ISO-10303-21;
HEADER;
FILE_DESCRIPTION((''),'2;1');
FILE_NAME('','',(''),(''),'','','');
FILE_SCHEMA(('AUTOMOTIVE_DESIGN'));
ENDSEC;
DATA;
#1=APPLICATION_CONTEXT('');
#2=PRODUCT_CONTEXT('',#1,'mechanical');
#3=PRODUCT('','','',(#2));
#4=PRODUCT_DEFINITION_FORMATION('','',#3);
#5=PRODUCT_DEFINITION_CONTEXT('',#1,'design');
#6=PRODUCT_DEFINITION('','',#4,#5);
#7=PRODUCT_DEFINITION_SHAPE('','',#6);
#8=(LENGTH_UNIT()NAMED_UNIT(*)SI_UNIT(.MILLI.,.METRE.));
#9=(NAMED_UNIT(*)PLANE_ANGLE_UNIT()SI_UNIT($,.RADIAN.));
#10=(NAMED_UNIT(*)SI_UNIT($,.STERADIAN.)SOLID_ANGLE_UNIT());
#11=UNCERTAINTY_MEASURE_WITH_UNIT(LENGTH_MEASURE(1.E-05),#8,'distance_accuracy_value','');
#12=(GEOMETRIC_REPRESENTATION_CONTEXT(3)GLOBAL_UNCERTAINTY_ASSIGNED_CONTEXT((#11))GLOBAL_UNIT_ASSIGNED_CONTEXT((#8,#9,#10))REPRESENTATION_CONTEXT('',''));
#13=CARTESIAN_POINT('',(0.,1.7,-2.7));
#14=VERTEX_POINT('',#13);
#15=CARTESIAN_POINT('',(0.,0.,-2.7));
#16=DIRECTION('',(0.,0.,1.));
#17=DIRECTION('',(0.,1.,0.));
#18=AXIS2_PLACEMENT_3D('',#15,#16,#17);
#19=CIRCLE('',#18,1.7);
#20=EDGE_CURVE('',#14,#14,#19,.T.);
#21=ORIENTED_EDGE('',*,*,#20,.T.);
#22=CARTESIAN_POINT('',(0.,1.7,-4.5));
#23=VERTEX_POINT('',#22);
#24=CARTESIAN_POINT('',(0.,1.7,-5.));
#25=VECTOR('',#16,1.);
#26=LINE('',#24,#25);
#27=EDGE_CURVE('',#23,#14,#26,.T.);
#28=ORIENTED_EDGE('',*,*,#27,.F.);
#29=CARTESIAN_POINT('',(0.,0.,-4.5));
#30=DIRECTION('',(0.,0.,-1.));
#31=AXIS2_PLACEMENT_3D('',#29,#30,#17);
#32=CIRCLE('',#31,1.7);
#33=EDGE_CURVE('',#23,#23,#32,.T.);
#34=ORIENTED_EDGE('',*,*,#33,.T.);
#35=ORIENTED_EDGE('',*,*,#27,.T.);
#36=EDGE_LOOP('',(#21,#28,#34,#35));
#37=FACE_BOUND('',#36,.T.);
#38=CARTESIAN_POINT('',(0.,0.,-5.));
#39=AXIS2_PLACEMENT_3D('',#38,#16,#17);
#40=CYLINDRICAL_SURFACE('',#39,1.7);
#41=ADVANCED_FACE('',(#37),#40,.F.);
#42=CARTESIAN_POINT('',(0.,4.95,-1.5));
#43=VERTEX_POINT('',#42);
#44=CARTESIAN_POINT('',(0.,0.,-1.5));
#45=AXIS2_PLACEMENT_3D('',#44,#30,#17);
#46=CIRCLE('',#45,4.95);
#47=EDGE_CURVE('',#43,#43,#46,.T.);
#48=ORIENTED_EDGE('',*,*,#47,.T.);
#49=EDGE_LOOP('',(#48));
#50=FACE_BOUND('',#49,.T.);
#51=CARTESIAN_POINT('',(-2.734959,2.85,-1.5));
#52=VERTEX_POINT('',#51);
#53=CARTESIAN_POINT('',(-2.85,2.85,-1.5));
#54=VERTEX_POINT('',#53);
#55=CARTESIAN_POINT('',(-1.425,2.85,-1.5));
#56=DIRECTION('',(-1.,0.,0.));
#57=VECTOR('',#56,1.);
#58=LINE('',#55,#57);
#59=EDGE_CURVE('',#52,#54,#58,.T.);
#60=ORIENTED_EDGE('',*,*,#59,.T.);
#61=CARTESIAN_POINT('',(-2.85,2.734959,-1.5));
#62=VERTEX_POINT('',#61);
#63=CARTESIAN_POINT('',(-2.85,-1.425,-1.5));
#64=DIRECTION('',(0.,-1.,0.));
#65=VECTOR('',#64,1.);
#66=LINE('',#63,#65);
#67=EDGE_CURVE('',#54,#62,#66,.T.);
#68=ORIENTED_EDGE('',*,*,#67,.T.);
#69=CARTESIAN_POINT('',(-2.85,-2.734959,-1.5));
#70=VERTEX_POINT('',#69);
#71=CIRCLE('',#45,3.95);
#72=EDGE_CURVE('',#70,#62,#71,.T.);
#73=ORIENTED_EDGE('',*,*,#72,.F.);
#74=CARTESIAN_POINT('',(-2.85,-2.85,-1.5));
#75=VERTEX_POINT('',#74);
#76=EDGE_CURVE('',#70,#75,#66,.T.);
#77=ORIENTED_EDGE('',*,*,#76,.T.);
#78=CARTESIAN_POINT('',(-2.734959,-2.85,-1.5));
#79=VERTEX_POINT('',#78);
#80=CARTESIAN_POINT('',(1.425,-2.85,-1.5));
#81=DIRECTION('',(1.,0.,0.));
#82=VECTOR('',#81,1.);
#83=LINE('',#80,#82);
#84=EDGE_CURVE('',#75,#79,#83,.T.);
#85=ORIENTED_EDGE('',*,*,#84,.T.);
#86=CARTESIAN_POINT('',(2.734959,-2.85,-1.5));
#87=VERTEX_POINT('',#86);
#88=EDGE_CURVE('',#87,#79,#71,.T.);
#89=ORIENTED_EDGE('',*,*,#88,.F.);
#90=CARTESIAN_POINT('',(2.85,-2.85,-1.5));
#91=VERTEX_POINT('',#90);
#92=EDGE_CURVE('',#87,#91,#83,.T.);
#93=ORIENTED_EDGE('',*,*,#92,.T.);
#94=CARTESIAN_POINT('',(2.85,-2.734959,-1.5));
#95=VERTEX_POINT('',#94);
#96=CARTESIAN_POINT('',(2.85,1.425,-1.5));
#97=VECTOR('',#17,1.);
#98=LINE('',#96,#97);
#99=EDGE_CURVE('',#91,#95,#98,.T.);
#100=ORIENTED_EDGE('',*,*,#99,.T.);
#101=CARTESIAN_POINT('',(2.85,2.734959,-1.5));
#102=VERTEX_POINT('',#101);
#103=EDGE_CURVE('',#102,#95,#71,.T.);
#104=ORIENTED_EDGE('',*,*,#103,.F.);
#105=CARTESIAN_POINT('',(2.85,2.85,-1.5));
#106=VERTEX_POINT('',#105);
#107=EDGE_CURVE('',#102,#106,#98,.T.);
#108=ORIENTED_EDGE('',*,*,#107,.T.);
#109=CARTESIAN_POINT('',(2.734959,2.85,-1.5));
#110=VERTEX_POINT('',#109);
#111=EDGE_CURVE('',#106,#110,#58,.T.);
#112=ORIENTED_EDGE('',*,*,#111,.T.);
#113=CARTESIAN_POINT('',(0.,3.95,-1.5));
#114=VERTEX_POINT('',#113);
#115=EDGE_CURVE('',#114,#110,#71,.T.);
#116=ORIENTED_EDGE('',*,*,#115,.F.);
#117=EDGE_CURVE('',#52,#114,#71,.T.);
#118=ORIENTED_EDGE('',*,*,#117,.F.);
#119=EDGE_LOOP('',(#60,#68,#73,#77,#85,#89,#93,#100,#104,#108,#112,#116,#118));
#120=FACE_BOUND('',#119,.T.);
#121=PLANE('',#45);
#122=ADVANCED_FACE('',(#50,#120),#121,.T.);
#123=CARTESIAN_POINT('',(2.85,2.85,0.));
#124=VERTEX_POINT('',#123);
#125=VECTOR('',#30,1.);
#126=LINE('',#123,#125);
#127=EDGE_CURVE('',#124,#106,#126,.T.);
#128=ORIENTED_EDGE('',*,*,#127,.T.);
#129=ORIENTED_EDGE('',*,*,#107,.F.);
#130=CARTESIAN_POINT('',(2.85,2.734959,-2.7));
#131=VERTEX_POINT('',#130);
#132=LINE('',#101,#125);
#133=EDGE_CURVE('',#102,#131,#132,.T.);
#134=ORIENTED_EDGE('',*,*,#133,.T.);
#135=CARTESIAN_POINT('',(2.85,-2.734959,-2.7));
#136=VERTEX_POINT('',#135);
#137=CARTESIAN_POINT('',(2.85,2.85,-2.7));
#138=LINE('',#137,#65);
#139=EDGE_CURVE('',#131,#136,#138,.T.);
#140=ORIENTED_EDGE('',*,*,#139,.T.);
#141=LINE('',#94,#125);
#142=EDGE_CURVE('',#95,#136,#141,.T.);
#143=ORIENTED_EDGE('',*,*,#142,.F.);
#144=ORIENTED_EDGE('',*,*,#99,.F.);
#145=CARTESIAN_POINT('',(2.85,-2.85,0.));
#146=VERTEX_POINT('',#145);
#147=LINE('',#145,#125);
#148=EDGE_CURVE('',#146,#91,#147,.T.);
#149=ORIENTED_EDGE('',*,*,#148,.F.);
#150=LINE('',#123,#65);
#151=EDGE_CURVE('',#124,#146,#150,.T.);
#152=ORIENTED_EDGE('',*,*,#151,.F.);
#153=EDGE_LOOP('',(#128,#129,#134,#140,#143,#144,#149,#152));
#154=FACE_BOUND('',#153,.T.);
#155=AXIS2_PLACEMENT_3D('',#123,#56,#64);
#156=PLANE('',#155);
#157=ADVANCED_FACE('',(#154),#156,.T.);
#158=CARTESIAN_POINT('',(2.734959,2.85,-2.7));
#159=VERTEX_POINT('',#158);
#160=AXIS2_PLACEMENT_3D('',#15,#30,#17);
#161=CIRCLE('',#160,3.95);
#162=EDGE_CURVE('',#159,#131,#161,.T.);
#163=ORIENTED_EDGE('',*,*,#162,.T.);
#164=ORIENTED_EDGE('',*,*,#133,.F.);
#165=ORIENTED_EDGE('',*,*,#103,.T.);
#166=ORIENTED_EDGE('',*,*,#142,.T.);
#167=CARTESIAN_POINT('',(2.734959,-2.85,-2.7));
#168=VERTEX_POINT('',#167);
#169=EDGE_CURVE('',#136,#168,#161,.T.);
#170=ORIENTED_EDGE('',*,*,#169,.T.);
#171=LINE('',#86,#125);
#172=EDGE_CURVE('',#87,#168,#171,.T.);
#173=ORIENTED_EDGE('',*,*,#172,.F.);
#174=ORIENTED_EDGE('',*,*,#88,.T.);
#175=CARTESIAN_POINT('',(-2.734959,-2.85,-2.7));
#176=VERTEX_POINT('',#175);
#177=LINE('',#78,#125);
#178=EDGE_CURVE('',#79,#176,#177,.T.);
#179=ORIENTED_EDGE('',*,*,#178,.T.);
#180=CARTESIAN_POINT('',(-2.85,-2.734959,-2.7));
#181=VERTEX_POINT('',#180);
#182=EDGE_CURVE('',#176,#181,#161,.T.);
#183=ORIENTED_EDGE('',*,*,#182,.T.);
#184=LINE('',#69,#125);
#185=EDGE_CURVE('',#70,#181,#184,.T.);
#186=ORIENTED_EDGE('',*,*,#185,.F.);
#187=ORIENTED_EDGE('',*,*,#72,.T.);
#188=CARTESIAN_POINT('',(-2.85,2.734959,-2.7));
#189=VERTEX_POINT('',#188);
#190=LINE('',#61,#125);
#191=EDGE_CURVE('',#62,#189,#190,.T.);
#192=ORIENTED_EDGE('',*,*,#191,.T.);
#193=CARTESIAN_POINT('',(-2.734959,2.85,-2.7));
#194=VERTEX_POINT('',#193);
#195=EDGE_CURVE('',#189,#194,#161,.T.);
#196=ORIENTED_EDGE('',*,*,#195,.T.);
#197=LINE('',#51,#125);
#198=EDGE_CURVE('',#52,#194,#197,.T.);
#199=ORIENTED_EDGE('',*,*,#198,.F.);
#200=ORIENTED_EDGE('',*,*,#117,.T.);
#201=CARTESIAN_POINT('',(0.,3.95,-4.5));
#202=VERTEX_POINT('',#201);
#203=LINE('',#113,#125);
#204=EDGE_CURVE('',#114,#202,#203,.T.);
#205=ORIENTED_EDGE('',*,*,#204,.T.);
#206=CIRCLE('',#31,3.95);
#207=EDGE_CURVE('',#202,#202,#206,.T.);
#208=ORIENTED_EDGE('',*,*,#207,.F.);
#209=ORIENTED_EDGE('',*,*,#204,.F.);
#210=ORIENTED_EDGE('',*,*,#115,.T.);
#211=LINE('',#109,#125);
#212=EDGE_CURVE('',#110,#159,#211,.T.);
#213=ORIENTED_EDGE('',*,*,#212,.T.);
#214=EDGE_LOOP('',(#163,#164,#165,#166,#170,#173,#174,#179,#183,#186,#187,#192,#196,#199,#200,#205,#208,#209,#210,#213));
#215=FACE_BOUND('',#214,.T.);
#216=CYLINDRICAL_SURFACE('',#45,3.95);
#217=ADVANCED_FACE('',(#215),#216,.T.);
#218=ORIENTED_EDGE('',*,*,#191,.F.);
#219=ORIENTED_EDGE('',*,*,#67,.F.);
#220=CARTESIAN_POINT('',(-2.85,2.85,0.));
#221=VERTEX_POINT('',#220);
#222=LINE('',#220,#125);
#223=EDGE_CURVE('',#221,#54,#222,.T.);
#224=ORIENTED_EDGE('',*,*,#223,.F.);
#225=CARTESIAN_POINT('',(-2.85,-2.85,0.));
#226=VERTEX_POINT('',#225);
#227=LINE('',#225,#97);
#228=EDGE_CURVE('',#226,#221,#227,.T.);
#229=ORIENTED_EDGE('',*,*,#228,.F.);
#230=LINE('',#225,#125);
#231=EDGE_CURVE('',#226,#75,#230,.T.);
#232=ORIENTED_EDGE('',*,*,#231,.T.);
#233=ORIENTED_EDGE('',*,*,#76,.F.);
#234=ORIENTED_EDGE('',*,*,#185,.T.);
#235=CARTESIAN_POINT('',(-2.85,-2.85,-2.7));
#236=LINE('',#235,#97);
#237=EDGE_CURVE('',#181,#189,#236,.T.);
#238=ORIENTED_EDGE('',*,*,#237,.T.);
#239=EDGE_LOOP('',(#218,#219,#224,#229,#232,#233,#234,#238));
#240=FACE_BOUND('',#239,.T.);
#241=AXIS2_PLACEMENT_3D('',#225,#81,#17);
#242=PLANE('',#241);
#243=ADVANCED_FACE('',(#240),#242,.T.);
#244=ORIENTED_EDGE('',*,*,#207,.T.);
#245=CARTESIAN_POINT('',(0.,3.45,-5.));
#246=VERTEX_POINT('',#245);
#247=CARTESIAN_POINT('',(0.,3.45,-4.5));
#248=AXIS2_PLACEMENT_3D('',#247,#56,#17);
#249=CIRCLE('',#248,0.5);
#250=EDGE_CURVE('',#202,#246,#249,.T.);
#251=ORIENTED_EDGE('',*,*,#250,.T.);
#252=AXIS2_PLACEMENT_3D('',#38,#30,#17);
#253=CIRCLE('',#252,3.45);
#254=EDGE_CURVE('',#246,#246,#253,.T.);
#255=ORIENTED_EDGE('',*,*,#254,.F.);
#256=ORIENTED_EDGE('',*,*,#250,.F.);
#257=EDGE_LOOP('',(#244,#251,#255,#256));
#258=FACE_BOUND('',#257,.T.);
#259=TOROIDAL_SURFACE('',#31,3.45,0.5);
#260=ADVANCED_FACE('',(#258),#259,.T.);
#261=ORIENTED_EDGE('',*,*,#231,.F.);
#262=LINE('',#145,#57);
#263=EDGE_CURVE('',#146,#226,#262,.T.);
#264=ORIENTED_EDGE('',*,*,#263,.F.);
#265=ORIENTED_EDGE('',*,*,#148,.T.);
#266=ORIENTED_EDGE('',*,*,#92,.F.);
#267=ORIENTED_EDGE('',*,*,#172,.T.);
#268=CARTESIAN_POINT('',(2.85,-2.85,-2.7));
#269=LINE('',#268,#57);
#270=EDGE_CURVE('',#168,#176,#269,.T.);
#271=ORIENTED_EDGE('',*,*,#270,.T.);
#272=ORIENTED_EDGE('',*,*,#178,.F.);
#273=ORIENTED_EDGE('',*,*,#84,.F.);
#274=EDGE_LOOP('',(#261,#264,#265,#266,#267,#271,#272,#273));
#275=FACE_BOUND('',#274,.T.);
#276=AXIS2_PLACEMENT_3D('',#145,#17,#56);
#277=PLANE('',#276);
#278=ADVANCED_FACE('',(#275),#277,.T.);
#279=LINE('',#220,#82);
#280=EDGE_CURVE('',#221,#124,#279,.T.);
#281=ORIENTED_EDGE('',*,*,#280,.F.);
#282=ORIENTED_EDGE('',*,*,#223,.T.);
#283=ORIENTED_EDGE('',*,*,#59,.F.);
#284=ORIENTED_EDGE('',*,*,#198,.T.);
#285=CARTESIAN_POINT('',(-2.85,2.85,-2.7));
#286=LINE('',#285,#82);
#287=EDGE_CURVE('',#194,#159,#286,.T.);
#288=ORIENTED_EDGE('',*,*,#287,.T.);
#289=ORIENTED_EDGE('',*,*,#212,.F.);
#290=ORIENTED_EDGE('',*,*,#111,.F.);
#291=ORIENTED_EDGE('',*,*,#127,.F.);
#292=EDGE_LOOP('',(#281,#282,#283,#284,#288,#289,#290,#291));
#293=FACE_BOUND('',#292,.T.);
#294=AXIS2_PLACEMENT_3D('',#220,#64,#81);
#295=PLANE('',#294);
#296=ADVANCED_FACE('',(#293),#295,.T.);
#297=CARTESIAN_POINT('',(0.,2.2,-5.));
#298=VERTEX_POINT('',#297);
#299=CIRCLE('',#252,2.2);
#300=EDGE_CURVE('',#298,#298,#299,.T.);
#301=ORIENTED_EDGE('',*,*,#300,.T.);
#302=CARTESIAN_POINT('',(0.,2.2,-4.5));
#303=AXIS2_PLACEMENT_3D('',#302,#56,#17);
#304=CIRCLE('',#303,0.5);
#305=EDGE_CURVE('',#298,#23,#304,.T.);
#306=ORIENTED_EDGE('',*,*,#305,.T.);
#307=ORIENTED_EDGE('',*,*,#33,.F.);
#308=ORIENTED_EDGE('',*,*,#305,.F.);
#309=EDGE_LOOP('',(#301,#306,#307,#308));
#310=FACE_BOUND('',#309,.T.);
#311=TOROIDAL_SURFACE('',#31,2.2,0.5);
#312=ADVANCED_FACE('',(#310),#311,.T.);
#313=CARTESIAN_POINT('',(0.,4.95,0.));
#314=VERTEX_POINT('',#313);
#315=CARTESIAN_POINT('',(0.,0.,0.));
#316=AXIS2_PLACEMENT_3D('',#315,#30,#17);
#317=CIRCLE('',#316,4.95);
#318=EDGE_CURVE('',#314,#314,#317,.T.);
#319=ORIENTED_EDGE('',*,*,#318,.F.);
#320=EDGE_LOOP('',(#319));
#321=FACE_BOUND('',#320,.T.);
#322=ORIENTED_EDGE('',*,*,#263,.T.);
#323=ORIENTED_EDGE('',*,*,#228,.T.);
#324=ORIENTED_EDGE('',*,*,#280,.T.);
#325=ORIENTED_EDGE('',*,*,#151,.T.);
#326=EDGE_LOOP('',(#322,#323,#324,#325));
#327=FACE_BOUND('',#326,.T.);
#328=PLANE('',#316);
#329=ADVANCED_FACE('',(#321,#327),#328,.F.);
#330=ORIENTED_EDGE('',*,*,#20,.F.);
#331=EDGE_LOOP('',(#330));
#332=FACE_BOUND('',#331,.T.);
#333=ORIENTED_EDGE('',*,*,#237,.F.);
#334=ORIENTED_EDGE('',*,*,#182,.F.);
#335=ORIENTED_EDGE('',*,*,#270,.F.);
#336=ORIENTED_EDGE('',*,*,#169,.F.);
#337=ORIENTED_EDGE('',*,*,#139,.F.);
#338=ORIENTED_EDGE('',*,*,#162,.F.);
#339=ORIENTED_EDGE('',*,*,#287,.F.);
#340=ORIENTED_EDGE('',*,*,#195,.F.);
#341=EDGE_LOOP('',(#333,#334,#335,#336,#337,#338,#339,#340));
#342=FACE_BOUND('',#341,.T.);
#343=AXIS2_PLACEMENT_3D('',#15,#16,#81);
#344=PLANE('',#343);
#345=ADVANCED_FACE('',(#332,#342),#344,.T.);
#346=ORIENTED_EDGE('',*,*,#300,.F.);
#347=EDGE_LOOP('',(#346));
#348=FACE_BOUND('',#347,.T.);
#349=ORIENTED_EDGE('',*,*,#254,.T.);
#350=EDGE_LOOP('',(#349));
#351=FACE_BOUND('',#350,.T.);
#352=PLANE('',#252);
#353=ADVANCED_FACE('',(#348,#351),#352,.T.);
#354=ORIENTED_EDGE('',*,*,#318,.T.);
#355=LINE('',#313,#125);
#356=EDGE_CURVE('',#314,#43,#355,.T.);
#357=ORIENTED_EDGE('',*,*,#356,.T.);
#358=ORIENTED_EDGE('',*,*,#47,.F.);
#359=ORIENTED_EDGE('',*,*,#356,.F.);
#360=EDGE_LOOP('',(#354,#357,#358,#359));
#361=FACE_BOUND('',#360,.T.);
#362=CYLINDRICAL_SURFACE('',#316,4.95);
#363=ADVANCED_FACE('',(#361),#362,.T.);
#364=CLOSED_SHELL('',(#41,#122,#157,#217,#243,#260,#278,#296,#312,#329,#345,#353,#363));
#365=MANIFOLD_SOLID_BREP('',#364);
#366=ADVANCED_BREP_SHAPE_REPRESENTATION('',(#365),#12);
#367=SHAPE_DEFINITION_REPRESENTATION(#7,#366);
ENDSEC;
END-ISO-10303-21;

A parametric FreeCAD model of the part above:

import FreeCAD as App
import Part
import Sketcher

V = App.Vector


def edges_at(feature, points):
    """Names of the edges that pass closest to the given points."""
    edges = feature.Shape.Edges
    near = lambda p: min(range(len(edges)), key=lambda i: edges[i].distToShape(Part.Vertex(*p))[0])
    return sorted({f"Edge{near(p) + 1}" for p in points})


def add_polygon(sketch, points):
    """Adds a closed chain of lines whose ends are joined by coincident constraints."""
    first, n = sketch.GeometryCount, len(points)
    for a, b in zip(points, points[1:] + points[:1]):
        sketch.addGeometry(Part.LineSegment(App.Vector(*a, 0), App.Vector(*b, 0)), False)
    for i in range(n):
        sketch.addConstraint(Sketcher.Constraint("Coincident", first + i, 2, first + (i + 1) % n, 1))

doc = App.newDocument("Part")
body = doc.addObject("PartDesign::Body", "Body")

# Sketch on YZ plane
sketch1 = body.newObject("Sketcher::SketchObject", "Sketch")
sketch1.AttachmentSupport = (doc.getObject("YZ_Plane"), [""])
sketch1.MapMode = "FlatFace"
add_polygon(sketch1, [(5, 0), (1.7, 0), (1.7, -5), (4, -5), (4, -1.5), (5, -1.5)])  # lines 0-5
sketch1.addConstraint(Sketcher.Constraint("Horizontal", 0))
sketch1.addConstraint(Sketcher.Constraint("Vertical", 1))
sketch1.addConstraint(Sketcher.Constraint("Horizontal", 2))
sketch1.addConstraint(Sketcher.Constraint("Vertical", 3))
sketch1.addConstraint(Sketcher.Constraint("Horizontal", 4))
sketch1.addConstraint(Sketcher.Constraint("Vertical", 5))
sketch1.addConstraint(Sketcher.Constraint("PointOnObject", 0, 2, -1))
sketch1.addConstraint(Sketcher.Constraint("DistanceX", 4, 1, 4, 2, 1.0))
sketch1.addConstraint(Sketcher.Constraint("DistanceY", 3, 1, 3, 2, 3.5))
sketch1.addConstraint(Sketcher.Constraint("DistanceY", 5, 1, 5, 2, 1.5))
sketch1.addConstraint(Sketcher.Constraint("DistanceX", -1, 1, 0, 2, 1.7))
sketch1.addConstraint(Sketcher.Constraint("DistanceX", -1, 1, 2, 2, 3.95))
revolution = body.newObject("PartDesign::Revolution", "Revolution")
revolution.Profile = sketch1
revolution.ReferenceAxis = (sketch1, ["V_Axis"])
revolution.Angle = 360

# Sketch on XY plane
sketch2 = body.newObject("Sketcher::SketchObject", "Sketch001")
sketch2.AttachmentSupport = (doc.getObject("XY_Plane"), [""])
sketch2.MapMode = "FlatFace"
add_polygon(sketch2, [(-3, -3), (3, -3), (3, 3), (-3, 3)])  # lines 0-3
sketch2.addConstraint(Sketcher.Constraint("Horizontal", 0))
sketch2.addConstraint(Sketcher.Constraint("Vertical", 1))
sketch2.addConstraint(Sketcher.Constraint("Horizontal", 2))
sketch2.addConstraint(Sketcher.Constraint("Vertical", 3))
sketch2.addConstraint(Sketcher.Constraint("Symmetric", 0, 2, 2, 2, -1, 1))
sketch2.addConstraint(Sketcher.Constraint("Equal", 2, 1))
sketch2.addConstraint(Sketcher.Constraint("DistanceX", 0, 1, 0, 2, 5.7))
pocket1 = body.newObject("PartDesign::Pocket", "Pocket")
pocket1.Profile = sketch2
pocket1.Length = 2.7
doc.recompute()

fillet = body.newObject("PartDesign::Fillet", "Fillet")
fillet.Base = (pocket1, edges_at(pocket1, [(0, -3.95, -5), (0, -1.7, -5)]))
fillet.Radius = 0.5

doc.recompute()
